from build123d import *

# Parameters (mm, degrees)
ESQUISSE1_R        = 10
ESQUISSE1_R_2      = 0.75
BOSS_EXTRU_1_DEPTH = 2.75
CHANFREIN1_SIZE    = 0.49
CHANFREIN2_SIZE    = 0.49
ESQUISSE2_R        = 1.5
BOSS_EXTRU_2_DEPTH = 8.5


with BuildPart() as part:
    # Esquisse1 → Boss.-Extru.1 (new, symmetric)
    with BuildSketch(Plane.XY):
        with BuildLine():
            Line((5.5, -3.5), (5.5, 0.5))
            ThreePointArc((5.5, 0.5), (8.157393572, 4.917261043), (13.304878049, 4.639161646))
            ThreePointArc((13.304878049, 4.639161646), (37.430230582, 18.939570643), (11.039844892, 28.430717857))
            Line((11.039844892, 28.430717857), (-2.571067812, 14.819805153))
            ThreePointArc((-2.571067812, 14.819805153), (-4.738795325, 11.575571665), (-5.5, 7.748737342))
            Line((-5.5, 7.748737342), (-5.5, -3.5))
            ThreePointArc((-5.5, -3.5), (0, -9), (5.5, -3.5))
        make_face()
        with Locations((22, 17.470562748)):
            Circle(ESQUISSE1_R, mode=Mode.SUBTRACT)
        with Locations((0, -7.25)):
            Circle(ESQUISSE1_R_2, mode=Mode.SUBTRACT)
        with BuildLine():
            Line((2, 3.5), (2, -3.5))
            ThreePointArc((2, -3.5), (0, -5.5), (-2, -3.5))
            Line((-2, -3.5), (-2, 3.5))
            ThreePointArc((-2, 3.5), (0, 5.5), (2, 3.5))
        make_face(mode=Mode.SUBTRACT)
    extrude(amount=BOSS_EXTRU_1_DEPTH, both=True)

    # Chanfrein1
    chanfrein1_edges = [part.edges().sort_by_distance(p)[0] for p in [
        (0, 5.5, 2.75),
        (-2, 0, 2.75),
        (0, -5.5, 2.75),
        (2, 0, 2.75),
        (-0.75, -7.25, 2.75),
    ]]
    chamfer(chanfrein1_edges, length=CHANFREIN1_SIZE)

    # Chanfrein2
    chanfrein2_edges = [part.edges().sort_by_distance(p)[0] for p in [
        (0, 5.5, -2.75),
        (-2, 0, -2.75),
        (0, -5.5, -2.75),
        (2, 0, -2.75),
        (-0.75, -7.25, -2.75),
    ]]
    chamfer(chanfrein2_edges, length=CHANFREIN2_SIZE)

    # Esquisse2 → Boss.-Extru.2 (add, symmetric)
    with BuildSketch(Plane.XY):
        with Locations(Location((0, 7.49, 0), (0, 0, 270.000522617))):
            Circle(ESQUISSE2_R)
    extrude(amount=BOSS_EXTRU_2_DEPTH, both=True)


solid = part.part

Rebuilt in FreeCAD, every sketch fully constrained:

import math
import FreeCAD as App
import Part
import Sketcher
from FreeCAD import Vector
Q = App.Units.Quantity


def edges_at(feature, points):
    """Names of the edges that pass closest to the given points."""
    edges = feature.Shape.Edges
    near = lambda p: min(range(len(edges)), key=lambda i: edges[i].distToShape(Part.Vertex(*p))[0])
    return sorted({f"Edge{near(p) + 1}" for p in points})

doc = App.newDocument("Part")
body = doc.addObject("PartDesign::Body", "Body")

# Sketch on XY plane
sketch1 = body.newObject("Sketcher::SketchObject", "Sketch")
sketch1.AttachmentSupport = (doc.getObject("XY_Plane"), [""])
sketch1.MapMode = "FlatFace"
sketch1.addGeometry([
    Part.LineSegment(Vector(5.5, -3.5, 0), Vector(5.5, 0.5, 0)),  # 0
    Part.ArcOfCircle(Part.Circle(Vector(10.5, 0.5, 0), Vector(0, 0, 1), 5), math.radians(55.876705), math.radians(180)),  # 1
    Part.ArcOfCircle(Part.Circle(Vector(22, 17.470563, 0), Vector(0, 0, 1), 15.5), math.radians(-124.123295), math.radians(135)),  # 2
    Part.LineSegment(Vector(11.039845, 28.430718, 0), Vector(-2.571068, 14.819805, 0)),  # 3
    Part.ArcOfCircle(Part.Circle(Vector(4.5, 7.748737, 0), Vector(0, 0, 1), 10), math.radians(135), math.radians(180)),  # 4
    Part.LineSegment(Vector(-5.5, 7.748737, 0), Vector(-5.5, -3.5, 0)),  # 5
    Part.ArcOfCircle(Part.Circle(Vector(0, -3.5, 0), Vector(0, 0, 1), 5.5), math.radians(180), math.radians(360)),  # 6
    Part.Circle(Vector(0, -7.25, 0), Vector(0, 0, 1), 0.75),  # 7
    Part.ArcOfCircle(Part.Circle(Vector(0, 3.5, 0), Vector(0, 0, 1), 2), math.radians(0), math.radians(180)),  # 8
    Part.LineSegment(Vector(2, 3.5, 0), Vector(2, -3.5, 0)),  # 9
    Part.ArcOfCircle(Part.Circle(Vector(0, -3.5, 0), Vector(0, 0, 1), 2), math.radians(180), math.radians(360)),  # 10
    Part.LineSegment(Vector(-2, -3.5, 0), Vector(-2, 3.5, 0)),  # 11
    Part.Circle(Vector(22, 17.470563, 0), Vector(0, 0, 1), 10),  # 12
], False)
sketch1.addConstraint([
    Sketcher.Constraint("Tangent", 0, 2, 1, 2),
    Sketcher.Constraint("Tangent", 1, 1, 2, 1),
    Sketcher.Constraint("Tangent", 2, 2, 3, 1),
    Sketcher.Constraint("Tangent", 3, 2, 4, 1),
    Sketcher.Constraint("Tangent", 4, 2, 5, 1),
    Sketcher.Constraint("Tangent", 5, 2, 6, 1),
    Sketcher.Constraint("Tangent", 6, 2, 0, 1),
    Sketcher.Constraint("Tangent", 8, 1, 9, 1),
    Sketcher.Constraint("Tangent", 9, 2, 10, 2),
    Sketcher.Constraint("Tangent", 10, 1, 11, 1),
    Sketcher.Constraint("Tangent", 11, 2, 8, 2),
    Sketcher.Constraint("Vertical", 0),
    Sketcher.Constraint("Vertical", 5),
    Sketcher.Constraint("Vertical", 9),
    Sketcher.Constraint("Vertical", 11),
    Sketcher.Constraint("Coincident", 10, 3, 6, 3),
    Sketcher.Constraint("Coincident", 12, 3, 2, 3),
    Sketcher.Constraint("Equal", 4, 12),
    Sketcher.Constraint("Symmetric", 6, 3, 8, 3, -1, 1),
    Sketcher.Constraint("PointOnObject", 7, 3, -2),
    Sketcher.Constraint("Diameter", 12, 20.0),
    Sketcher.Constraint("Radius", 1, 5.0),
    Sketcher.Constraint("Radius", 8, 2.0),
    Sketcher.Constraint("Diameter", 7, 1.5),
    Sketcher.Constraint("Radius", 2, 15.5),
    Sketcher.Constraint("Radius", 6, 5.5),
    Sketcher.Constraint("DistanceY", 0, 1, 0, 2, 4.0),
    Sketcher.Constraint("DistanceY", 9, 2, 9, 1, 7.0),
    Sketcher.Constraint("Angle", 3, Q("-135 deg")),
    Sketcher.Constraint("DistanceX", -1, 1, 2, 3, 22.0),
    Sketcher.Constraint("DistanceY", 7, 3, -1, 1, 7.25),
])
pad1 = body.newObject("PartDesign::Pad", "Pad")
pad1.Profile = sketch1
pad1.Length = 5.5
pad1.Midplane = True
doc.recompute()

chamfer = body.newObject("PartDesign::Chamfer", "Chamfer")
chamfer.Base = (pad1, edges_at(pad1, [
    (0, 5.5, 2.75),
    (-2, 0, 2.75),
    (0, -5.5, 2.75),
    (2, 0, 2.75),
    (-0.75, -7.25, 2.75),
]))
chamfer.Size = 0.49
doc.recompute()

chamfer2 = body.newObject("PartDesign::Chamfer", "Chamfer001")
chamfer2.Base = (chamfer, edges_at(chamfer, [
    (0, 5.5, -2.75),
    (-2, 0, -2.75),
    (0, -5.5, -2.75),
    (2, 0, -2.75),
    (-0.75, -7.25, -2.75),
]))
chamfer2.Size = 0.49

# Sketch on XY plane
sketch2 = body.newObject("Sketcher::SketchObject", "Sketch001")
sketch2.AttachmentSupport = (doc.getObject("XY_Plane"), [""])
sketch2.MapMode = "FlatFace"
sketch2.addGeometry(Part.Circle(Vector(0, 7.49, 0), Vector(0, 0, 1), 1.5), False)
sketch2.addConstraint([
    Sketcher.Constraint("PointOnObject", 0, 3, -2),
    Sketcher.Constraint("Diameter", 0, 3.0),
    Sketcher.Constraint("DistanceY", -1, 1, 0, 3, 7.49),
])
pad2 = body.newObject("PartDesign::Pad", "Pad001")
pad2.Profile = sketch2
pad2.Length = 17
pad2.Midplane = True

doc.recompute()
